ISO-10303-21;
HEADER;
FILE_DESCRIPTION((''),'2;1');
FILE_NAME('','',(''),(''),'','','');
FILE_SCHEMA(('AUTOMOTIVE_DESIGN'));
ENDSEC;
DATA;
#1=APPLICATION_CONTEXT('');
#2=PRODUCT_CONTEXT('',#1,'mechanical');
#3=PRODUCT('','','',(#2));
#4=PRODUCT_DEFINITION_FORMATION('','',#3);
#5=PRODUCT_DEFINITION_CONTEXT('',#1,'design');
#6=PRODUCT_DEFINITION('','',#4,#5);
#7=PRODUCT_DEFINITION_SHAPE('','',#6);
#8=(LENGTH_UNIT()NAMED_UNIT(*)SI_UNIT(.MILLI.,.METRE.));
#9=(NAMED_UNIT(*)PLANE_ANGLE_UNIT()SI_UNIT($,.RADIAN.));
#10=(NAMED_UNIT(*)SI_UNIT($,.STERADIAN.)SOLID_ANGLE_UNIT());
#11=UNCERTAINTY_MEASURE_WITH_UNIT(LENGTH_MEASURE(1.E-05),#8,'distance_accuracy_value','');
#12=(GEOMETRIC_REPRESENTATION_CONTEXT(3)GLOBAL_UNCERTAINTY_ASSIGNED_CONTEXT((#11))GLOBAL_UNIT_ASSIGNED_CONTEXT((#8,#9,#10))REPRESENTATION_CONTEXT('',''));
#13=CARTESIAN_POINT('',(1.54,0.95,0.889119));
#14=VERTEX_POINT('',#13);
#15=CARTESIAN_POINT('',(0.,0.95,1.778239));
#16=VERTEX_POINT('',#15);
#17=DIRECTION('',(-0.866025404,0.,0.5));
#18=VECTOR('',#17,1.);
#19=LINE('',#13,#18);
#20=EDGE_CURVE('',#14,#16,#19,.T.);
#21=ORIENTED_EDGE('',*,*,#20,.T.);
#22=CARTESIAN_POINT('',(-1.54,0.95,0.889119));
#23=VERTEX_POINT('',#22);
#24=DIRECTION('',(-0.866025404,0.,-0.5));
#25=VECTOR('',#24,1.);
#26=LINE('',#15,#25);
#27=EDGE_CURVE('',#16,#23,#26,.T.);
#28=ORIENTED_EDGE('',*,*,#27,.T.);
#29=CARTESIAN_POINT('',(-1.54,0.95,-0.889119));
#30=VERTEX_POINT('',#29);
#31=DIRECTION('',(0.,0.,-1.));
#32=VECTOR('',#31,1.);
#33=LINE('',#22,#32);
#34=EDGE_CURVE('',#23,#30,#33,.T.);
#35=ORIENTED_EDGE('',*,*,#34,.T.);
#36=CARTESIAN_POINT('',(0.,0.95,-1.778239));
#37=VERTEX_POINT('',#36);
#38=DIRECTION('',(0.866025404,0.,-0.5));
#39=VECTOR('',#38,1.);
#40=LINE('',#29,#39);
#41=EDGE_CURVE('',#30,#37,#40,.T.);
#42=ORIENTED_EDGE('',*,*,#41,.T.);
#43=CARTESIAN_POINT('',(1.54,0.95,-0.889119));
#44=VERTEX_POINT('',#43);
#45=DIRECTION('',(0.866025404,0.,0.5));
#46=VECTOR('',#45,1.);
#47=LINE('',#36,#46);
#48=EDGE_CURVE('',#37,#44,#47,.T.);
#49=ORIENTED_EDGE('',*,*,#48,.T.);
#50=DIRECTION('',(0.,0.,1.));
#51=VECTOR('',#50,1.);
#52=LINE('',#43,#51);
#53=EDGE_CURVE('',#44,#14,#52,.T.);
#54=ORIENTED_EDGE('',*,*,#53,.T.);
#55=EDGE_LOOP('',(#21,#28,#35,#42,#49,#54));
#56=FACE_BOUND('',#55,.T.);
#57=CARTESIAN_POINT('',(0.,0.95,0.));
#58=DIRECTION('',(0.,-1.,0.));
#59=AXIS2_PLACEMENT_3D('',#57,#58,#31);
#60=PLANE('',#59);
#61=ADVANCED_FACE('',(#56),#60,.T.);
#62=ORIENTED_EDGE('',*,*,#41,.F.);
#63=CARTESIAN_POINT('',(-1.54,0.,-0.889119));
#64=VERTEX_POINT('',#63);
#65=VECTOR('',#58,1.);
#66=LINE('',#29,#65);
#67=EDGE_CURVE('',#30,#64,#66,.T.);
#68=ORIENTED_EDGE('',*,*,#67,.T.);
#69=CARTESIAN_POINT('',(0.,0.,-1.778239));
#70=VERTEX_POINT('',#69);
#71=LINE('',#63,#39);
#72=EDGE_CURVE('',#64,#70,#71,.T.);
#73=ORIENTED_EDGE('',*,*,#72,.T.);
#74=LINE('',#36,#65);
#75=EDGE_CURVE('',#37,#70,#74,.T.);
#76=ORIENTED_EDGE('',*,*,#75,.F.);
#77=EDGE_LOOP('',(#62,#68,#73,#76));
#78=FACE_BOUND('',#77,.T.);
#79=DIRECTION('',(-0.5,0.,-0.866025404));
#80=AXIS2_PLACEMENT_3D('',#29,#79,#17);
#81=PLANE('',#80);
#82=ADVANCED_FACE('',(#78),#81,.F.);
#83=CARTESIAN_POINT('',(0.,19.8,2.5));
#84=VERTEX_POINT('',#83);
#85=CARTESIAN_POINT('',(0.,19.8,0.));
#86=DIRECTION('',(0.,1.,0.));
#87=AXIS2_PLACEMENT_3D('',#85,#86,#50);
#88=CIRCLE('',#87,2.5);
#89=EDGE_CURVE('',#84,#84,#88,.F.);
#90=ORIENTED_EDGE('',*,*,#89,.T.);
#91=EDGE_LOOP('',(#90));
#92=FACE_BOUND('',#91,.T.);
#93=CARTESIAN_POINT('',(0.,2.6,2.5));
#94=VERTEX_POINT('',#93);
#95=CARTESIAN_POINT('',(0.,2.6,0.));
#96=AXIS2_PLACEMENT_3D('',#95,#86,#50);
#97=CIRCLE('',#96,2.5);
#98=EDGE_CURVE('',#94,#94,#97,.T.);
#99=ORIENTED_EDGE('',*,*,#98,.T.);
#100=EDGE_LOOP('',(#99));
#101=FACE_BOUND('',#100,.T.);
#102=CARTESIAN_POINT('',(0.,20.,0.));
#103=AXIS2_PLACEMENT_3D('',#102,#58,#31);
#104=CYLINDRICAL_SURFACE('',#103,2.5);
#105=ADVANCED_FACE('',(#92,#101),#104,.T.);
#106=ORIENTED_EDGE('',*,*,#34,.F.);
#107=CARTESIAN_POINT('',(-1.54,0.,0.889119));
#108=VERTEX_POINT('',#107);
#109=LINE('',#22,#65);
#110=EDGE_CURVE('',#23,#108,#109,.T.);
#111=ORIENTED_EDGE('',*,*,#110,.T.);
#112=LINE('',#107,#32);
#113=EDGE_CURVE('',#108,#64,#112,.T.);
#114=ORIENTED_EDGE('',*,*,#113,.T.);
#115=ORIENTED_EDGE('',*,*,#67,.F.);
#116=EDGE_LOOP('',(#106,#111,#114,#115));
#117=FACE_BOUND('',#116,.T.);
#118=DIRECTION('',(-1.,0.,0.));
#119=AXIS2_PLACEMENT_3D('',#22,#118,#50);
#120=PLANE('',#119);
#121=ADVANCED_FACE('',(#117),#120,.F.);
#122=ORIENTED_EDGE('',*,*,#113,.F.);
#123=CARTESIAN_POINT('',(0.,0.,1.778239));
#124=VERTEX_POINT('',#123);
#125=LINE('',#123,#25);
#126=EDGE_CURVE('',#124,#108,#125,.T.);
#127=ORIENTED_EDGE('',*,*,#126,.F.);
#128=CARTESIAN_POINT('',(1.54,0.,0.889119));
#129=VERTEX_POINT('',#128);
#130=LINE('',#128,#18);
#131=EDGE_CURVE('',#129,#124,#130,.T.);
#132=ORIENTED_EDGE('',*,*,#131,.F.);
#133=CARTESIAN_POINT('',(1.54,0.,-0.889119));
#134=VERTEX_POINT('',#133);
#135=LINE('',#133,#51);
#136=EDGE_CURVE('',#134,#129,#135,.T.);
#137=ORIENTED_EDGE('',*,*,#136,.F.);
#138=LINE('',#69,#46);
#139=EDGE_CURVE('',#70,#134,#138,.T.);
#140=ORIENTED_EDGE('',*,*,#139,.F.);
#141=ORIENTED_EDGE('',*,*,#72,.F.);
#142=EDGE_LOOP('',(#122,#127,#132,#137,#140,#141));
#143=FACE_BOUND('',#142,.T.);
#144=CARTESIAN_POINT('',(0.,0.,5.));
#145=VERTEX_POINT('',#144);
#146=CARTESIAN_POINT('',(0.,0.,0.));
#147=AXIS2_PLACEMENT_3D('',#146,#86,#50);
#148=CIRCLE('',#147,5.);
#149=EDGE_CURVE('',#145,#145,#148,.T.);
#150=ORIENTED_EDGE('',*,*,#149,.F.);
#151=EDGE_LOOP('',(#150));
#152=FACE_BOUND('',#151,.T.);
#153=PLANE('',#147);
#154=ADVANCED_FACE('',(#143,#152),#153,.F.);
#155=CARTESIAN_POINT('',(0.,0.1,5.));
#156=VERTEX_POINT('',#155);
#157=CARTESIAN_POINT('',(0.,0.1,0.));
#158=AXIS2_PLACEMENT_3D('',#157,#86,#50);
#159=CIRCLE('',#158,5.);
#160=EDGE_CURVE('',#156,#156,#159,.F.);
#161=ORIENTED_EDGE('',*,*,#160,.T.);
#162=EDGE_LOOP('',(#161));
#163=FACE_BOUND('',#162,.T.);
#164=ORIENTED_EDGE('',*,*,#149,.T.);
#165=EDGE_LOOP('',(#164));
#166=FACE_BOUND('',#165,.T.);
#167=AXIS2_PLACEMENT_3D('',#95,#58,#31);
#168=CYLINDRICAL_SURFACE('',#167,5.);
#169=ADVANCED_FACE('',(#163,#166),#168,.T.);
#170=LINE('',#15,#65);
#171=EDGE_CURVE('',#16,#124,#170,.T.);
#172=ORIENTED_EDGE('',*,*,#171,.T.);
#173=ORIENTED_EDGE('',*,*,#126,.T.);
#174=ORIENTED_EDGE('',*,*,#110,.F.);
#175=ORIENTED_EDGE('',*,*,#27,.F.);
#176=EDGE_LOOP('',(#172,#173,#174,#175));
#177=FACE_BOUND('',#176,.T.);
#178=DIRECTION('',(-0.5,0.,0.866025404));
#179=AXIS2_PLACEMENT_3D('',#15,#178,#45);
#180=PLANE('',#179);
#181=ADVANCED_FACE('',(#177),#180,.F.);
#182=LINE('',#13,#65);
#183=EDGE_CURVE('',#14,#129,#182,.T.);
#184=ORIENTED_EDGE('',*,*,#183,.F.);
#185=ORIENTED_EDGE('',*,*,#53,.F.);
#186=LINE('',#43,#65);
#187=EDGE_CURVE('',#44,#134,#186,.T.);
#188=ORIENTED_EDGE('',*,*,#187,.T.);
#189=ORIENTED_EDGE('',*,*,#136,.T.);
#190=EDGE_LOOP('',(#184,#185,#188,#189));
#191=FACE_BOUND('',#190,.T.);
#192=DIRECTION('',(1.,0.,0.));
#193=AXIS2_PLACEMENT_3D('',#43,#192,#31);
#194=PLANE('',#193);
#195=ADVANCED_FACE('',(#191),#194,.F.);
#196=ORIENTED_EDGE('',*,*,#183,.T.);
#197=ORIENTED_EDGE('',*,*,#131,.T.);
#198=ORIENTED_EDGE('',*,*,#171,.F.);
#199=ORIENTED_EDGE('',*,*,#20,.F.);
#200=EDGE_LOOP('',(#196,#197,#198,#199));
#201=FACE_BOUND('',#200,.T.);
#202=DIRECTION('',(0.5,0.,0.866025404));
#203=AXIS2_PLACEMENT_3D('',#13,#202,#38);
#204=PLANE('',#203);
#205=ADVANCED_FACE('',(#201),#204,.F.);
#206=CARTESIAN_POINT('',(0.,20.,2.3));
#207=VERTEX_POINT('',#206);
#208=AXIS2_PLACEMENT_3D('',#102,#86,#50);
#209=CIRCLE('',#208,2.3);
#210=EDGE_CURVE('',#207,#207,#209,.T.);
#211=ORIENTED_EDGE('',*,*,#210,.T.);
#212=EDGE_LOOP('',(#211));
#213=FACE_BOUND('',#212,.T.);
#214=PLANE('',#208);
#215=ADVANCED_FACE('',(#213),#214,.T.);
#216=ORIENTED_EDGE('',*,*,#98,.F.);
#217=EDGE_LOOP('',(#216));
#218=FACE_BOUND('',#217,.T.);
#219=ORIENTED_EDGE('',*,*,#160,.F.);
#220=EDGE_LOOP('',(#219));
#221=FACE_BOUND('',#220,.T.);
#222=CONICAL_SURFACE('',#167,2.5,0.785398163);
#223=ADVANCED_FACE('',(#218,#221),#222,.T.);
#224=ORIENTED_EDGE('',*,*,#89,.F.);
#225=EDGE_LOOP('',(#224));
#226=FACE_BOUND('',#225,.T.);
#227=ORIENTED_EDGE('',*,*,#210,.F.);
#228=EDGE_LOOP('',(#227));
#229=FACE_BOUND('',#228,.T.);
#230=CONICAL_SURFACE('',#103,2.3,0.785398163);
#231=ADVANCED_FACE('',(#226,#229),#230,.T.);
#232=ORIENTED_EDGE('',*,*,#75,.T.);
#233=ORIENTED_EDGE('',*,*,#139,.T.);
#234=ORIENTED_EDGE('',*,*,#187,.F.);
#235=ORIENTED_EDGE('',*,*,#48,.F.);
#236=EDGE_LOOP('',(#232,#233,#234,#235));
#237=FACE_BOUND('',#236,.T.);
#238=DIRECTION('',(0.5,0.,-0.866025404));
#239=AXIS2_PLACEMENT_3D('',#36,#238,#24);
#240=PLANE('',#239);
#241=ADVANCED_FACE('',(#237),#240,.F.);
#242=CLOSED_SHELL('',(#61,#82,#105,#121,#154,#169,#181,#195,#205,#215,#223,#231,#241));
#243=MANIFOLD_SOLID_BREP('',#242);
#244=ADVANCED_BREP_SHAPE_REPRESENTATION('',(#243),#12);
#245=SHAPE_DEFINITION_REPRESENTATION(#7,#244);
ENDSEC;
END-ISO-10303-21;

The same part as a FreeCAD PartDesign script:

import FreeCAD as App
import Part
import Sketcher
Q = App.Units.Quantity


def edges_at(feature, points):
    """Names of the edges that pass closest to the given points."""
    edges = feature.Shape.Edges
    near = lambda p: min(range(len(edges)), key=lambda i: edges[i].distToShape(Part.Vertex(*p))[0])
    return sorted({f"Edge{near(p) + 1}" for p in points})


def add_polygon(sketch, points):
    """Adds a closed chain of lines whose ends are joined by coincident constraints."""
    first, n = sketch.GeometryCount, len(points)
    for a, b in zip(points, points[1:] + points[:1]):
        sketch.addGeometry(Part.LineSegment(App.Vector(*a, 0), App.Vector(*b, 0)), False)
    for i in range(n):
        sketch.addConstraint(Sketcher.Constraint("Coincident", first + i, 2, first + (i + 1) % n, 1))

doc = App.newDocument("Part")
body = doc.addObject("PartDesign::Body", "Body")

# Sketch on XZ plane
sketch1 = body.newObject("Sketcher::SketchObject", "Sketch")
sketch1.AttachmentSupport = (doc.getObject("XZ_Plane"), [""])
sketch1.MapMode = "FlatFace"
sketch1.addGeometry(Part.Circle(App.Vector(0, 0, 0), App.Vector(0, 0, 1), 5), False)
sketch1.addConstraint(Sketcher.Constraint("Coincident", 0, 3, -1, 1))
sketch1.addConstraint(Sketcher.Constraint("Diameter", 0, 10.0))
pad1 = body.newObject("PartDesign::Pad", "Pad")
pad1.Profile = sketch1
pad1.Length = 2.6
pad1.Reversed = True
doc.recompute()

chamfer = body.newObject("PartDesign::Chamfer", "Chamfer")
chamfer.Base = (pad1, edges_at(pad1, [(0, 2.6, -5)]))
chamfer.Size = 2.5

# Sketch on XZ plane
sketch2 = body.newObject("Sketcher::SketchObject", "Sketch001")
sketch2.AttachmentSupport = (doc.getObject("XZ_Plane"), [""])
sketch2.MapMode = "FlatFace"
add_polygon(sketch2, [(1.5, -0.9), (1.5, 0.9), (0, 1.8), (-1.5, 0.9), (-1.5, -0.9), (0, -1.8)])  # lines 0-5
sketch2.addConstraint(Sketcher.Constraint("Vertical", 0))
sketch2.addConstraint(Sketcher.Constraint("Vertical", 3))
sketch2.addConstraint(Sketcher.Constraint("Symmetric", 0, 2, 3, 2, -1, 1))
sketch2.addConstraint(Sketcher.Constraint("Symmetric", 1, 2, 4, 2, -1, 1))
sketch2.addConstraint(Sketcher.Constraint("PointOnObject", 1, 2, -2))
sketch2.addConstraint(Sketcher.Constraint("Parallel", 2, 5))
sketch2.addConstraint(Sketcher.Constraint("Horizontal", 0, 2, 2, 2))
sketch2.addConstraint(Sketcher.Constraint("Angle", 1, Q("150 deg")))
sketch2.addConstraint(Sketcher.Constraint("DistanceX", -1, 1, 0, 2, 1.54))
sketch2.addConstraint(Sketcher.Constraint("DistanceY", 0, 1, 0, 2, 1.778239))
pocket1 = body.newObject("PartDesign::Pocket", "Pocket")
pocket1.Profile = sketch2
pocket1.Length = 0.95

# Sketch on XZ plane
sketch3 = body.newObject("Sketcher::SketchObject", "Sketch002")
sketch3.AttachmentSupport = (doc.getObject("XZ_Plane"), [""])
sketch3.MapMode = "FlatFace"
sketch3.AttachmentOffset = App.Placement(App.Vector(0, 0, -2.6), App.Rotation())
sketch3.addGeometry(Part.Circle(App.Vector(0, 0, 0), App.Vector(0, 0, 1), 2.5), False)
sketch3.addConstraint(Sketcher.Constraint("Coincident", 0, 3, -1, 1))
sketch3.addConstraint(Sketcher.Constraint("Diameter", 0, 5.0))
pad2 = body.newObject("PartDesign::Pad", "Pad001")
pad2.Profile = sketch3
pad2.Length = 17.4
pad2.Reversed = True
doc.recompute()

chamfer2 = body.newObject("PartDesign::Chamfer", "Chamfer001")
chamfer2.Base = (pad2, edges_at(pad2, [(0, 20, -2.5)]))
chamfer2.Size = 0.2

doc.recompute()
